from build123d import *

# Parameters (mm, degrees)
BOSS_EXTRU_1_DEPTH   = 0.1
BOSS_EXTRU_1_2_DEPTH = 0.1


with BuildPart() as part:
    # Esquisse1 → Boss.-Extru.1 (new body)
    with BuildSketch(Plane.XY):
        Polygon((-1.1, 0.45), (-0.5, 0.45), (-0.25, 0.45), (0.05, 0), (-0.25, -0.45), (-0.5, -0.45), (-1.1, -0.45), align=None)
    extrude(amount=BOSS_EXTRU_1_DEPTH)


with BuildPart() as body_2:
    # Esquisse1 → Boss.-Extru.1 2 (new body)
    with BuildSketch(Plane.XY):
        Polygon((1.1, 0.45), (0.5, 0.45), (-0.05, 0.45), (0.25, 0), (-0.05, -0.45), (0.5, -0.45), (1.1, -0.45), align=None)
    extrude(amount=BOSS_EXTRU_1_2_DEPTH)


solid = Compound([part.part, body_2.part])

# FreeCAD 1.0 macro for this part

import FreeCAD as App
import Part
import Sketcher

V = App.Vector

doc = App.newDocument("Part")
body = doc.addObject("PartDesign::Body", "Body")

# Sketch on XY plane
sketch1 = body.newObject("Sketcher::SketchObject", "Sketch")
sketch1.AttachmentSupport = (doc.getObject("XY_Plane"), [""])
sketch1.MapMode = "FlatFace"
sketch1.addGeometry([
    Part.LineSegment(V(-0.25, 0.45, 0), V(-1.1, 0.45, 0)),  # 0
    Part.LineSegment(V(-1.1, 0.45, 0), V(-1.1, -0.45, 0)),  # 1
    Part.LineSegment(V(-1.1, -0.45, 0), V(-0.25, -0.45, 0)),  # 2
    Part.LineSegment(V(-0.25, -0.45, 0), V(0.05, 0, 0)),  # 3
    Part.LineSegment(V(0.05, 0, 0), V(-0.25, 0.45, 0)),  # 4
], False)
sketch1.addConstraint([
    Sketcher.Constraint("Coincident", 0, 2, 1, 1),
    Sketcher.Constraint("Coincident", 1, 2, 2, 1),
    Sketcher.Constraint("Coincident", 2, 2, 3, 1),
    Sketcher.Constraint("Coincident", 3, 2, 4, 1),
    Sketcher.Constraint("Coincident", 4, 2, 0, 1),
    Sketcher.Constraint("Horizontal", 0),
    Sketcher.Constraint("Vertical", 1),
    Sketcher.Constraint("Horizontal", 2),
    Sketcher.Constraint("Symmetric", 2, 2, 4, 2, -1),
    Sketcher.Constraint("PointOnObject", 3, 2, -1),
    Sketcher.Constraint("DistanceY", 1, 2, 1, 1, 0.9),
    Sketcher.Constraint("DistanceX", 0, 2, 0, 1, 0.85),
    Sketcher.Constraint("DistanceX", 0, 2, -1, 1, 1.1),
    Sketcher.Constraint("DistanceX", 2, 2, 3, 2, 0.3),
])
pad1 = body.newObject("PartDesign::Pad", "Pad")
pad1.Profile = sketch1
pad1.Length = 0.1
body2 = doc.addObject("PartDesign::Body", "Body001")

# Sketch on XY plane
sketch2 = body2.newObject("Sketcher::SketchObject", "Sketch001")
sketch2.AttachmentSupport = (doc.getObject("XY_Plane001"), [""])
sketch2.MapMode = "FlatFace"
sketch2.addGeometry([
    Part.LineSegment(V(1.1, 0.45, 0), V(-0.05, 0.45, 0)),  # 0
    Part.LineSegment(V(-0.05, 0.45, 0), V(0.25, 0, 0)),  # 1
    Part.LineSegment(V(0.25, 0, 0), V(-0.05, -0.45, 0)),  # 2
    Part.LineSegment(V(-0.05, -0.45, 0), V(1.1, -0.45, 0)),  # 3
    Part.LineSegment(V(1.1, -0.45, 0), V(1.1, 0.45, 0)),  # 4
], False)
sketch2.addConstraint([
    Sketcher.Constraint("Coincident", 0, 2, 1, 1),
    Sketcher.Constraint("Coincident", 1, 2, 2, 1),
    Sketcher.Constraint("Coincident", 2, 2, 3, 1),
    Sketcher.Constraint("Coincident", 3, 2, 4, 1),
    Sketcher.Constraint("Coincident", 4, 2, 0, 1),
    Sketcher.Constraint("Horizontal", 0),
    Sketcher.Constraint("Horizontal", 3),
    Sketcher.Constraint("Vertical", 4),
    Sketcher.Constraint("Symmetric", 0, 2, 2, 2, -1),
    Sketcher.Constraint("PointOnObject", 1, 2, -1),
    Sketcher.Constraint("DistanceY", 4, 1, 4, 2, 0.9),
    Sketcher.Constraint("DistanceX", 0, 2, 0, 1, 1.15),
    Sketcher.Constraint("DistanceX", -1, 1, 3, 2, 1.1),
    Sketcher.Constraint("DistanceX", 0, 2, 1, 2, 0.3),
])
pad2 = body2.newObject("PartDesign::Pad", "Pad001")
pad2.Profile = sketch2
pad2.Length = 0.1

doc.recompute()
